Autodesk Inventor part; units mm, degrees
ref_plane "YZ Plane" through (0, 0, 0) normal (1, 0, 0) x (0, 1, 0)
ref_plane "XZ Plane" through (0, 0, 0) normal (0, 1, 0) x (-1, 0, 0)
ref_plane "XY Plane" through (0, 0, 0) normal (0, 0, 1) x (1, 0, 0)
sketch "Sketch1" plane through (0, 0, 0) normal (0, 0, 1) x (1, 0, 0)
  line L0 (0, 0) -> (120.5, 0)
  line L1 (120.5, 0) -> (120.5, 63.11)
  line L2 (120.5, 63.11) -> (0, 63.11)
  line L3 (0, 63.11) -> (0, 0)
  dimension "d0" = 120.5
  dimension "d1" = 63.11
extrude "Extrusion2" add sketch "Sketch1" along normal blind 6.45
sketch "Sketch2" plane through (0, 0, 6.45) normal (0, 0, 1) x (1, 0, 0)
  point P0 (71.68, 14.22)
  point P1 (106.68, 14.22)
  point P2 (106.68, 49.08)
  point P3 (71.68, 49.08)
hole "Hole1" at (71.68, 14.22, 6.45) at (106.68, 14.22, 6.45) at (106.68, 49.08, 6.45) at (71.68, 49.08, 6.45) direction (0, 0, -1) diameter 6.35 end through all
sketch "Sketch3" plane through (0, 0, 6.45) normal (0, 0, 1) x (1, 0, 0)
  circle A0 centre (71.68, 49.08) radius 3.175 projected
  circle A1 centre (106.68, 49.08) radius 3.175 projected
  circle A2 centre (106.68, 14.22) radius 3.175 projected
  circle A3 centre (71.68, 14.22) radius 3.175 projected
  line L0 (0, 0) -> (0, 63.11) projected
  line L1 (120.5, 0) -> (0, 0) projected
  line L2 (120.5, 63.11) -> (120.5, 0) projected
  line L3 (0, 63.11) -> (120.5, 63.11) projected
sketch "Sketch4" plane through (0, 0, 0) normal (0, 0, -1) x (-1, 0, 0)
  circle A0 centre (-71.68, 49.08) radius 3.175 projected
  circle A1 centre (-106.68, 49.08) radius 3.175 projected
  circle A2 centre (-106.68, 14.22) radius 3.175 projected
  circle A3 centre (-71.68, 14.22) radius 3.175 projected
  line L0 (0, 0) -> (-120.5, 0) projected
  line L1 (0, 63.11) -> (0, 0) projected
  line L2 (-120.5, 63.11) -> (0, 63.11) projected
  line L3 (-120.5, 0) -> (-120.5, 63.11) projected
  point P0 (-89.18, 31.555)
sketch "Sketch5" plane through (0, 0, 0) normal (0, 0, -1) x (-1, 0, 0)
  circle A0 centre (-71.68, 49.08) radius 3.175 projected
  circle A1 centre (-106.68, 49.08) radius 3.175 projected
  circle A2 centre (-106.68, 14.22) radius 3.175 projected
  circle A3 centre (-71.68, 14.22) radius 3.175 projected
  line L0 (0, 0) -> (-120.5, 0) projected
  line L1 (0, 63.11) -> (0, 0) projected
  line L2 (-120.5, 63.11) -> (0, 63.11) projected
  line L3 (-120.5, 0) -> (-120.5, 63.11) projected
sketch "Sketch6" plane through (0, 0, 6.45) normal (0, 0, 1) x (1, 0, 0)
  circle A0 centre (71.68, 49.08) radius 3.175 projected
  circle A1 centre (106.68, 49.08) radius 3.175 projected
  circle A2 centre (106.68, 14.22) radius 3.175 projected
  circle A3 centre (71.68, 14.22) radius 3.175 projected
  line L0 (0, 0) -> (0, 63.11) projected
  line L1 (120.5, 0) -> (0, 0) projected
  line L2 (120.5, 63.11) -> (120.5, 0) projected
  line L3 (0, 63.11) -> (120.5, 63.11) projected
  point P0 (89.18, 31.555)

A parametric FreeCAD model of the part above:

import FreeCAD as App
import Part
import Sketcher
Q = App.Units.Quantity

doc = App.newDocument("Part")
body = doc.addObject("PartDesign::Body", "Body")

sketch1 = doc.addObject("Sketcher::SketchObject", "Sketch")
body.addObject(sketch1)
sketch1.AttachmentSupport = (doc.XY_Plane, [""])
sketch1.MapMode = "FlatFace"
sketch1.addGeometry([
    Part.LineSegment(App.Vector(0, 63, 0), App.Vector(0, 0, 0)),
    Part.LineSegment(App.Vector(0, 0, 0), App.Vector(120, 0, 0)),
    Part.LineSegment(App.Vector(120, 0, 0), App.Vector(120, 63, 0)),
    Part.LineSegment(App.Vector(120, 63, 0), App.Vector(0, 63, 0)),
], False)
sketch1.addConstraint([
    Sketcher.Constraint("Coincident", 0, 2, 1, 1),
    Sketcher.Constraint("Coincident", 1, 2, 2, 1),
    Sketcher.Constraint("Coincident", 2, 2, 3, 1),
    Sketcher.Constraint("Coincident", 3, 2, 0, 1),
    Sketcher.Constraint("Vertical", 0),
    Sketcher.Constraint("Horizontal", 1),
    Sketcher.Constraint("Vertical", 2),
    Sketcher.Constraint("Horizontal", 3),
    Sketcher.Constraint("Coincident", 0, 2, -1, 1),
    Sketcher.Constraint("DistanceX", 1, 1, 1, 2, Q("4.7441 in")),
    Sketcher.Constraint("DistanceY", 0, 2, 0, 1, 63.11),
])
pad1 = doc.addObject("PartDesign::Pad", "Pad")
body.addObject(pad1)
pad1.Profile = sketch1
pad1.Length = 6.45

sketch2 = doc.addObject("Sketcher::SketchObject", "Sketch001")
body.addObject(sketch2)
sketch2.AttachmentSupport = (doc.XY_Plane, [""])
sketch2.MapMode = "FlatFace"
sketch2.AttachmentOffset = App.Placement(App.Vector(0, 0, 6.45), App.Rotation())
sketch2.addGeometry([
    Part.Circle(App.Vector(71.7, 14.2, 0), App.Vector(0, 0, 1), 3.2),
    Part.Circle(App.Vector(106.7, 14.2, 0), App.Vector(0, 0, 1), 3.2),
    Part.Circle(App.Vector(106.7, 49.1, 0), App.Vector(0, 0, 1), 3.2),
    Part.Circle(App.Vector(71.7, 49.1, 0), App.Vector(0, 0, 1), 3.2),
], False)
sketch2.addConstraint([
    Sketcher.Constraint("Equal", 0, 1),
    Sketcher.Constraint("Equal", 1, 2),
    Sketcher.Constraint("Equal", 2, 3),
    Sketcher.Constraint("Horizontal", 0, 3, 1, 3),
    Sketcher.Constraint("Horizontal", 2, 3, 3, 3),
    Sketcher.Constraint("Vertical", 1, 3, 2, 3),
    Sketcher.Constraint("Vertical", 0, 3, 3, 3),
    Sketcher.Constraint("Diameter", 0, Q("0.25 in")),
    Sketcher.Constraint("DistanceX", -1, 1, 1, 3, Q("4.2 in")),
    Sketcher.Constraint("DistanceX", -1, 1, 0, 3, 71.68),
    Sketcher.Constraint("DistanceY", -1, 1, 0, 3, 14.22),
    Sketcher.Constraint("DistanceY", -1, 1, 2, 3, 49.08),
])
doc.recompute()
hole = doc.addObject("PartDesign::Hole", "Hole")
body.addObject(hole)
hole.Profile = sketch2
hole.ThreadType = "None"
hole.Diameter = Q("0.25 in")
hole.DepthType = "ThroughAll"

doc.recompute()
